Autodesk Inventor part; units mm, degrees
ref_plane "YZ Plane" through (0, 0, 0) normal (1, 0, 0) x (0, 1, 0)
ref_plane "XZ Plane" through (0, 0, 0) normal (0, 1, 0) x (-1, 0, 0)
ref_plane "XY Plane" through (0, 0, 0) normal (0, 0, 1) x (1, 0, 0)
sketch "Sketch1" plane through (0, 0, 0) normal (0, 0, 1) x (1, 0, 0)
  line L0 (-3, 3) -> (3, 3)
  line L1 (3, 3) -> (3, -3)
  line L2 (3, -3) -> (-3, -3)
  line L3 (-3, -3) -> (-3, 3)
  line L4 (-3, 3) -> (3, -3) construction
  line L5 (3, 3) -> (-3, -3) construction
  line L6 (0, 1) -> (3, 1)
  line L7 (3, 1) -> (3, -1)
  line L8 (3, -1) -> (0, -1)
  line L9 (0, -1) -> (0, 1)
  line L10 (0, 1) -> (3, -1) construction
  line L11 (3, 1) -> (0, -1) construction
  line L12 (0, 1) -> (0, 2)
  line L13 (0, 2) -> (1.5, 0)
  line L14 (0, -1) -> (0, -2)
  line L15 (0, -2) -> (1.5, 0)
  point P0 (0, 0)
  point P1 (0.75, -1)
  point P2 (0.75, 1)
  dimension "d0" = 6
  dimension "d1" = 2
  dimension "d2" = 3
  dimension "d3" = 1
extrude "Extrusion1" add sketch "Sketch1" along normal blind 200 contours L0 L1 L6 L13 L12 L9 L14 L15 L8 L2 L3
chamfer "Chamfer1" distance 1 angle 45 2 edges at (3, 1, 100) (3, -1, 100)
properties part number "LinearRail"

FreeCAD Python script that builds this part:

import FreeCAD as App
import Part
import Sketcher

V = App.Vector


def edges_at(feature, points):
    """Names of the edges that pass closest to the given points."""
    edges = feature.Shape.Edges
    near = lambda p: min(range(len(edges)), key=lambda i: edges[i].distToShape(Part.Vertex(*p))[0])
    return sorted({f"Edge{near(p) + 1}" for p in points})


def add_polygon(sketch, points):
    """Adds a closed chain of lines whose ends are joined by coincident constraints."""
    first, n = sketch.GeometryCount, len(points)
    for a, b in zip(points, points[1:] + points[:1]):
        sketch.addGeometry(Part.LineSegment(App.Vector(*a, 0), App.Vector(*b, 0)), False)
    for i in range(n):
        sketch.addConstraint(Sketcher.Constraint("Coincident", first + i, 2, first + (i + 1) % n, 1))

doc = App.newDocument("Part")
body = doc.addObject("PartDesign::Body", "Body")

# Sketch on XY plane
sketch1 = doc.addObject("Sketcher::SketchObject", "Sketch")
body.addObject(sketch1)
sketch1.AttachmentSupport = (doc.XY_Plane, [""])
sketch1.MapMode = "FlatFace"
add_polygon(sketch1, [(3, 3), (-3, 3), (-3, -3), (3, -3), (3, -1), (0.8, -1), (0, -2), (0, 2), (0.8, 1), (3, 1)])  # lines 0-9
sketch1.addConstraint(Sketcher.Constraint("Horizontal", 0))
sketch1.addConstraint(Sketcher.Constraint("Vertical", 1))
sketch1.addConstraint(Sketcher.Constraint("Horizontal", 2))
sketch1.addConstraint(Sketcher.Constraint("Vertical", 3))
sketch1.addConstraint(Sketcher.Constraint("Horizontal", 4))
sketch1.addConstraint(Sketcher.Constraint("Vertical", 6))
sketch1.addConstraint(Sketcher.Constraint("Horizontal", 8))
sketch1.addConstraint(Sketcher.Constraint("Vertical", 9))
sketch1.addConstraint(Sketcher.Constraint("Symmetric", 0, 2, 2, 2, -1, 1))
sketch1.addConstraint(Sketcher.Constraint("Symmetric", 5, 2, 6, 2, -1, 1))
sketch1.addConstraint(Sketcher.Constraint("Symmetric", 4, 2, 7, 2, -1))
sketch1.addConstraint(Sketcher.Constraint("Vertical", 3, 2, 8, 2))
sketch1.addConstraint(Sketcher.Constraint("Equal", 2, 1))
sketch1.addConstraint(Sketcher.Constraint("DistanceX", 0, 2, 0, 1, 6.0))
sketch1.addConstraint(Sketcher.Constraint("DistanceY", 3, 1, 3, 2, 2.0))
sketch1.addConstraint(Sketcher.Constraint("DistanceY", 5, 2, -1, 1, 2.0))
sketch1.addConstraint(Sketcher.Constraint("DistanceX", 4, 2, 4, 1, 2.25))
pad1 = doc.addObject("PartDesign::Pad", "Pad")
body.addObject(pad1)
pad1.Profile = sketch1
pad1.Length = 200
doc.recompute()

chamfer = doc.addObject("PartDesign::Chamfer", "Chamfer")
body.addObject(chamfer)
chamfer.Base = (pad1, edges_at(pad1, [(3, 1, 100), (3, -1, 100)]))
chamfer.Size = 1

doc.recompute()
